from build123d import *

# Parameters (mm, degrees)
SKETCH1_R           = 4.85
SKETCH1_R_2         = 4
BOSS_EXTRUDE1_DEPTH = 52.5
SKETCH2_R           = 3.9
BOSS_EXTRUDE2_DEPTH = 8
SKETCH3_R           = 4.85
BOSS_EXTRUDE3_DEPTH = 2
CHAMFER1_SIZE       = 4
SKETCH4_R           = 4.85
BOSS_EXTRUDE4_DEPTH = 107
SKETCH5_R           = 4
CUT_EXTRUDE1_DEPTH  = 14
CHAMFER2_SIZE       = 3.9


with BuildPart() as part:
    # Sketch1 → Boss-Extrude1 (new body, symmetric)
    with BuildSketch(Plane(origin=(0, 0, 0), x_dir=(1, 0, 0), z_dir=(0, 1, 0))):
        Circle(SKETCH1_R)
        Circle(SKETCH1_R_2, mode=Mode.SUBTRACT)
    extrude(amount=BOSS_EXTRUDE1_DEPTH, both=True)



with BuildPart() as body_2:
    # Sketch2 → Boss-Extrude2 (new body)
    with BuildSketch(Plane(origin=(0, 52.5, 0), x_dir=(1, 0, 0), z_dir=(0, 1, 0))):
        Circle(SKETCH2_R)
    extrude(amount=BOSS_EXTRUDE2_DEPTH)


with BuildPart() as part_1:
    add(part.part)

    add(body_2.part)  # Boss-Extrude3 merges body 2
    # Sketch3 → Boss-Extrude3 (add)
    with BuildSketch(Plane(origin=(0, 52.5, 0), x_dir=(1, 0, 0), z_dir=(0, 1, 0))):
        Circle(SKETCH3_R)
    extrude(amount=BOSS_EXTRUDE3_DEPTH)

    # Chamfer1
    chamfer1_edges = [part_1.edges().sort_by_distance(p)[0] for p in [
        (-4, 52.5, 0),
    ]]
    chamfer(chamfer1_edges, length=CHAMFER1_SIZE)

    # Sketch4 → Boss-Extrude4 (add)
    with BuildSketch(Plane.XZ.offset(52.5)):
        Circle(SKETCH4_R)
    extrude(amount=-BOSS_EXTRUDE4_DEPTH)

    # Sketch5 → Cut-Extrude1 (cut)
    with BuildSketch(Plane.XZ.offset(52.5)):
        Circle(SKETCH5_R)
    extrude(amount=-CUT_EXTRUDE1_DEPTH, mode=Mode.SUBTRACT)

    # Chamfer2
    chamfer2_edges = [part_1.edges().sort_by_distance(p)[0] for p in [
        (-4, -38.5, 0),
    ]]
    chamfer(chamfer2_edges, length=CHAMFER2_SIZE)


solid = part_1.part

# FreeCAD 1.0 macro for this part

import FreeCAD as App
import Part
import Sketcher

V = App.Vector
Q = App.Units.Quantity


def edges_at(feature, points):
    """Names of the edges that pass closest to the given points."""
    edges = feature.Shape.Edges
    near = lambda p: min(range(len(edges)), key=lambda i: edges[i].distToShape(Part.Vertex(*p))[0])
    return sorted({f"Edge{near(p) + 1}" for p in points})

doc = App.newDocument("Part")
body = doc.addObject("PartDesign::Body", "Body")

# Sketch on XZ plane
sketch1 = body.newObject("Sketcher::SketchObject", "Sketch")
sketch1.AttachmentSupport = (doc.getObject("XZ_Plane"), [""])
sketch1.MapMode = "FlatFace"
sketch1.addGeometry([
    Part.Circle(V(0, 0, 0), V(0, 0, 1), 4.8),
    Part.Circle(V(0, 0, 0), V(0, 0, 1), 4),
], False)
sketch1.addConstraint([
    Sketcher.Constraint("Coincident", 0, 3, -1, 1),
    Sketcher.Constraint("Coincident", 1, 3, -1, 1),
    Sketcher.Constraint("Diameter", 1, Q("8 mm")),
    Sketcher.Constraint("Diameter", 0, Q("9.7 mm")),
])
pad1 = body.newObject("PartDesign::Pad", "Pad")
pad1.Profile = sketch1
pad1.Length = 105
pad1.Midplane = True
body2 = doc.addObject("PartDesign::Body", "Body001")

# Sketch on XZ plane
sketch2 = body2.newObject("Sketcher::SketchObject", "Sketch001")
sketch2.AttachmentSupport = (doc.getObject("XZ_Plane001"), [""])
sketch2.MapMode = "FlatFace"
sketch2.AttachmentOffset = App.Placement(V(0, 0, -52.5), App.Rotation())
sketch2.addGeometry(Part.Circle(V(0, 0, 0), V(0, 0, 1), 3.9), False)
sketch2.addConstraint([
    Sketcher.Constraint("Coincident", 0, 3, -1, 1),
    Sketcher.Constraint("Diameter", 0, Q("7.8 mm")),
])
pad2 = body2.newObject("PartDesign::Pad", "Pad001")
pad2.Profile = sketch2
pad2.Length = 8
pad2.Reversed = True
body.AllowCompound = True
doc.recompute()

boolean = body.newObject("PartDesign::Boolean", "Boolean")
boolean.Type = "Fuse"
boolean.addObjects([body2])

# Sketch on XZ plane
sketch3 = body.newObject("Sketcher::SketchObject", "Sketch002")
sketch3.AttachmentSupport = (doc.getObject("XZ_Plane"), [""])
sketch3.MapMode = "FlatFace"
sketch3.AttachmentOffset = App.Placement(V(0, 0, -52.5), App.Rotation())
sketch3.addGeometry(Part.Circle(V(0, 0, 0), V(0, 0, 1), 4.8), False)
sketch3.addConstraint([
    Sketcher.Constraint("Coincident", 0, 3, -1, 1),
    Sketcher.Constraint("Diameter", 0, Q("9.7 mm")),
])
pad3 = body.newObject("PartDesign::Pad", "Pad002")
pad3.Profile = sketch3
pad3.Length = 2
pad3.Reversed = True
doc.recompute()

chamfer = body.newObject("PartDesign::Chamfer", "Chamfer")
chamfer.Base = (pad3, edges_at(pad3, [(-4, 52.5, 0)]))
chamfer.Size = 4

# Sketch on XZ plane
sketch4 = body.newObject("Sketcher::SketchObject", "Sketch003")
sketch4.AttachmentSupport = (doc.getObject("XZ_Plane"), [""])
sketch4.MapMode = "FlatFace"
sketch4.AttachmentOffset = App.Placement(V(0, 0, 52.5), App.Rotation())
sketch4.addGeometry(Part.Circle(V(0, 0, 0), V(0, 0, 1), 4.8), False)
sketch4.addConstraint([
    Sketcher.Constraint("Coincident", 0, 3, -1, 1),
    Sketcher.Constraint("Diameter", 0, Q("9.7 mm")),
])
pad4 = body.newObject("PartDesign::Pad", "Pad003")
pad4.Profile = sketch4
pad4.Length = 107
pad4.Reversed = True

# Sketch on XZ plane
sketch5 = body.newObject("Sketcher::SketchObject", "Sketch004")
sketch5.AttachmentSupport = (doc.getObject("XZ_Plane"), [""])
sketch5.MapMode = "FlatFace"
sketch5.AttachmentOffset = App.Placement(V(0, 0, 52.5), App.Rotation())
sketch5.addGeometry(Part.Circle(V(0, 0, 0), V(0, 0, 1), 4), False)
sketch5.addConstraint([
    Sketcher.Constraint("Coincident", 0, 3, -1, 1),
    Sketcher.Constraint("Diameter", 0, Q("8 mm")),
])
pocket1 = body.newObject("PartDesign::Pocket", "Pocket")
pocket1.Profile = sketch5
pocket1.Length = 14
doc.recompute()

chamfer2 = body.newObject("PartDesign::Chamfer", "Chamfer001")
chamfer2.Base = (pocket1, edges_at(pocket1, [(-4, -38.5, 0)]))
chamfer2.Size = 3.9

doc.recompute()
